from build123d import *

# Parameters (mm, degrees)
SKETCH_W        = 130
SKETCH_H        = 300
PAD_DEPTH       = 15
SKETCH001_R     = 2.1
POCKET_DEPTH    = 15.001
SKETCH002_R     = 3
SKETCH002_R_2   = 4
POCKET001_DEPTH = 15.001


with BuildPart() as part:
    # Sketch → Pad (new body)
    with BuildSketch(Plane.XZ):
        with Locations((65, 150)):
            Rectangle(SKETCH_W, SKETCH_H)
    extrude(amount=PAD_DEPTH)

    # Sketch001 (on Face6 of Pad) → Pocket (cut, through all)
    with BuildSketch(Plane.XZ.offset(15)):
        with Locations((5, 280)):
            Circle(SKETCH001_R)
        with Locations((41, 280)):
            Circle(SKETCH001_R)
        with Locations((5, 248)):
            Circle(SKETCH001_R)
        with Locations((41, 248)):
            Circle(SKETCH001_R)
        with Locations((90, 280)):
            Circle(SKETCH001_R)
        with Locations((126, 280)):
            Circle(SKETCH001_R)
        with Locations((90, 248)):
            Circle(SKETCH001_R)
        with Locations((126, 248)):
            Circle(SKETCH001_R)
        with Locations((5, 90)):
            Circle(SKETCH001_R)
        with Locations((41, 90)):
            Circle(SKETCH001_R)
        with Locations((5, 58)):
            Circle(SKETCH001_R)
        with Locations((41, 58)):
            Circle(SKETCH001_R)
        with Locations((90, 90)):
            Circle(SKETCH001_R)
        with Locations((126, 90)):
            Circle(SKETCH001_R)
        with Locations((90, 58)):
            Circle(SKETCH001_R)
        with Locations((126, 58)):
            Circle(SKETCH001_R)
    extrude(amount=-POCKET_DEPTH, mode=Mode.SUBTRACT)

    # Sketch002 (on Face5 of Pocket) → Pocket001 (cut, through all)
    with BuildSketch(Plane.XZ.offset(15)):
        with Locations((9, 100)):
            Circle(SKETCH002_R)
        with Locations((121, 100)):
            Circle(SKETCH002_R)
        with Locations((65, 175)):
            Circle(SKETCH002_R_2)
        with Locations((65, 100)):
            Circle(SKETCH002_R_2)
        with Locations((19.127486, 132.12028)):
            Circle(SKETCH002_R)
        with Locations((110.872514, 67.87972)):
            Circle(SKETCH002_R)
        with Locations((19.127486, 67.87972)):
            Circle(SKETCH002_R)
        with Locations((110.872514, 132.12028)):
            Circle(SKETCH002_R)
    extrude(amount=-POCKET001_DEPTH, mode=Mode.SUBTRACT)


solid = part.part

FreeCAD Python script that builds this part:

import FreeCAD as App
import Part
import Sketcher

V = App.Vector


def add_polygon(sketch, points):
    """Adds a closed chain of lines whose ends are joined by coincident constraints."""
    first, n = sketch.GeometryCount, len(points)
    for a, b in zip(points, points[1:] + points[:1]):
        sketch.addGeometry(Part.LineSegment(App.Vector(*a, 0), App.Vector(*b, 0)), False)
    for i in range(n):
        sketch.addConstraint(Sketcher.Constraint("Coincident", first + i, 2, first + (i + 1) % n, 1))

doc = App.newDocument("Part")
params = doc.addObject("Spreadsheet::Sheet", "Params")
for row, (alias, value) in enumerate([
    ("sketch1_width", "130 mm"),
    ("sketch1_height", "300 mm"),
    ("pad1_length", "15 mm"),
    ("sketch2_diameter", "4.2 mm"),
    ("sketch3_diameter", "6 mm"),
    ("sketch3_diameter2", "8 mm"),
], start=1):
    params.set(f"A{row}", alias)
    params.set(f"B{row}", "=" + value)
    params.setAlias(f"B{row}", alias)

body = doc.addObject("PartDesign::Body", "Body")

sketch1 = body.newObject("Sketcher::SketchObject", "Sketch")
sketch1.AttachmentSupport = (doc.getObject("XZ_Plane"), [""])
sketch1.MapMode = "FlatFace"
add_polygon(sketch1, [(0, 300), (0, 0), (130, 0), (130, 300)])
sketch1.addConstraint(Sketcher.Constraint("Vertical", 0))
sketch1.addConstraint(Sketcher.Constraint("Horizontal", 1))
sketch1.addConstraint(Sketcher.Constraint("Vertical", 2))
sketch1.addConstraint(Sketcher.Constraint("Horizontal", 3))
sketch1.addConstraint(Sketcher.Constraint("Coincident", 0, 2, -1, 1))
sketch1.addConstraint(Sketcher.Constraint("DistanceX", 1, 1, 1, 2, 130.0))
sketch1.addConstraint(Sketcher.Constraint("DistanceY", 0, 2, 0, 1, 300.0))
sketch1.setExpression("Constraints[9]", "Params.sketch1_width")
sketch1.setExpression("Constraints[10]", "Params.sketch1_height")
pad1 = body.newObject("PartDesign::Pad", "Pad")
pad1.Profile = sketch1
pad1.setExpression("Length", "Params.pad1_length")

sketch2 = body.newObject("Sketcher::SketchObject", "Sketch001")
sketch2.AttachmentSupport = (doc.getObject("XZ_Plane"), [""])
sketch2.MapMode = "FlatFace"
sketch2.AttachmentOffset = App.Placement(V(0, 0, 15), App.Rotation())
sketch2.addGeometry(Part.Circle(V(5, 280, 0), V(0, 0, 1), 2.1), False)
sketch2.addGeometry(Part.Circle(V(41, 280, 0), V(0, 0, 1), 2.1), False)
sketch2.addGeometry(Part.Circle(V(5, 248, 0), V(0, 0, 1), 2.1), False)
sketch2.addGeometry(Part.Circle(V(41, 248, 0), V(0, 0, 1), 2.1), False)
sketch2.addGeometry(Part.Circle(V(90, 280, 0), V(0, 0, 1), 2.1), False)
sketch2.addGeometry(Part.Circle(V(126, 280, 0), V(0, 0, 1), 2.1), False)
sketch2.addGeometry(Part.Circle(V(90, 248, 0), V(0, 0, 1), 2.1), False)
sketch2.addGeometry(Part.Circle(V(126, 248, 0), V(0, 0, 1), 2.1), False)
sketch2.addGeometry(Part.Circle(V(5, 90, 0), V(0, 0, 1), 2.1), False)
sketch2.addGeometry(Part.Circle(V(41, 90, 0), V(0, 0, 1), 2.1), False)
sketch2.addGeometry(Part.Circle(V(5, 58, 0), V(0, 0, 1), 2.1), False)
sketch2.addGeometry(Part.Circle(V(41, 58, 0), V(0, 0, 1), 2.1), False)
sketch2.addGeometry(Part.Circle(V(90, 90, 0), V(0, 0, 1), 2.1), False)
sketch2.addGeometry(Part.Circle(V(126, 90, 0), V(0, 0, 1), 2.1), False)
sketch2.addGeometry(Part.Circle(V(90, 58, 0), V(0, 0, 1), 2.1), False)
sketch2.addGeometry(Part.Circle(V(126, 58, 0), V(0, 0, 1), 2.1), False)
sketch2.addConstraint(Sketcher.Constraint("Equal", 0, 1))
sketch2.addConstraint(Sketcher.Constraint("Equal", 1, 2))
sketch2.addConstraint(Sketcher.Constraint("Equal", 2, 3))
sketch2.addConstraint(Sketcher.Constraint("Equal", 3, 4))
sketch2.addConstraint(Sketcher.Constraint("Equal", 4, 5))
sketch2.addConstraint(Sketcher.Constraint("Equal", 5, 6))
sketch2.addConstraint(Sketcher.Constraint("Equal", 6, 7))
sketch2.addConstraint(Sketcher.Constraint("Equal", 7, 8))
sketch2.addConstraint(Sketcher.Constraint("Equal", 8, 9))
sketch2.addConstraint(Sketcher.Constraint("Equal", 9, 10))
sketch2.addConstraint(Sketcher.Constraint("Equal", 10, 11))
sketch2.addConstraint(Sketcher.Constraint("Equal", 11, 12))
sketch2.addConstraint(Sketcher.Constraint("Equal", 12, 13))
sketch2.addConstraint(Sketcher.Constraint("Equal", 13, 14))
sketch2.addConstraint(Sketcher.Constraint("Equal", 14, 15))
sketch2.addConstraint(Sketcher.Constraint("Horizontal", 0, 3, 1, 3))
sketch2.addConstraint(Sketcher.Constraint("Horizontal", 2, 3, 3, 3))
sketch2.addConstraint(Sketcher.Constraint("Horizontal", 1, 3, 4, 3))
sketch2.addConstraint(Sketcher.Constraint("Horizontal", 4, 3, 5, 3))
sketch2.addConstraint(Sketcher.Constraint("Horizontal", 3, 3, 6, 3))
sketch2.addConstraint(Sketcher.Constraint("Horizontal", 6, 3, 7, 3))
sketch2.addConstraint(Sketcher.Constraint("Horizontal", 8, 3, 9, 3))
sketch2.addConstraint(Sketcher.Constraint("Horizontal", 10, 3, 11, 3))
sketch2.addConstraint(Sketcher.Constraint("Horizontal", 9, 3, 12, 3))
sketch2.addConstraint(Sketcher.Constraint("Horizontal", 12, 3, 13, 3))
sketch2.addConstraint(Sketcher.Constraint("Horizontal", 11, 3, 14, 3))
sketch2.addConstraint(Sketcher.Constraint("Horizontal", 14, 3, 15, 3))
sketch2.addConstraint(Sketcher.Constraint("Vertical", 0, 3, 2, 3))
sketch2.addConstraint(Sketcher.Constraint("Vertical", 1, 3, 3, 3))
sketch2.addConstraint(Sketcher.Constraint("Vertical", 4, 3, 6, 3))
sketch2.addConstraint(Sketcher.Constraint("Vertical", 5, 3, 7, 3))
sketch2.addConstraint(Sketcher.Constraint("Vertical", 2, 3, 8, 3))
sketch2.addConstraint(Sketcher.Constraint("Vertical", 3, 3, 9, 3))
sketch2.addConstraint(Sketcher.Constraint("Vertical", 8, 3, 10, 3))
sketch2.addConstraint(Sketcher.Constraint("Vertical", 9, 3, 11, 3))
sketch2.addConstraint(Sketcher.Constraint("Vertical", 6, 3, 12, 3))
sketch2.addConstraint(Sketcher.Constraint("Vertical", 7, 3, 13, 3))
sketch2.addConstraint(Sketcher.Constraint("Vertical", 12, 3, 14, 3))
sketch2.addConstraint(Sketcher.Constraint("Vertical", 13, 3, 15, 3))
sketch2.addConstraint(Sketcher.Constraint("Diameter", 0, 4.2))
sketch2.addConstraint(Sketcher.Constraint("DistanceX", -1, 1, 0, 3, 5.0))
sketch2.addConstraint(Sketcher.Constraint("DistanceY", -1, 1, 0, 3, 280.0))
sketch2.addConstraint(Sketcher.Constraint("DistanceX", -1, 1, 1, 3, 41.0))
sketch2.addConstraint(Sketcher.Constraint("DistanceY", -1, 1, 2, 3, 248.0))
sketch2.addConstraint(Sketcher.Constraint("DistanceX", -1, 1, 4, 3, 90.0))
sketch2.addConstraint(Sketcher.Constraint("DistanceX", -1, 1, 5, 3, 126.0))
sketch2.addConstraint(Sketcher.Constraint("DistanceY", -1, 1, 8, 3, 90.0))
sketch2.addConstraint(Sketcher.Constraint("DistanceY", -1, 1, 10, 3, 58.0))
sketch2.setExpression("Constraints[39]", "Params.sketch2_diameter")
pocket1 = body.newObject("PartDesign::Pocket", "Pocket")
pocket1.Profile = sketch2
pocket1.Type = "ThroughAll"

sketch3 = body.newObject("Sketcher::SketchObject", "Sketch002")
sketch3.AttachmentSupport = (doc.getObject("XZ_Plane"), [""])
sketch3.MapMode = "FlatFace"
sketch3.AttachmentOffset = App.Placement(V(0, 0, 15), App.Rotation())
sketch3.addGeometry(Part.Circle(V(9, 100, 0), V(0, 0, 1), 3), False)
sketch3.addGeometry(Part.Circle(V(121, 100, 0), V(0, 0, 1), 3), False)
sketch3.addGeometry(Part.Circle(V(65, 175, 0), V(0, 0, 1), 4), False)
sketch3.addGeometry(Part.Circle(V(65, 100, 0), V(0, 0, 1), 4), False)
sketch3.addGeometry(Part.Circle(V(19.1, 132.1, 0), V(0, 0, 1), 3), False)
sketch3.addGeometry(Part.Circle(V(110.9, 67.9, 0), V(0, 0, 1), 3), False)
sketch3.addGeometry(Part.Circle(V(19.1, 67.9, 0), V(0, 0, 1), 3), False)
sketch3.addGeometry(Part.Circle(V(110.9, 132.1, 0), V(0, 0, 1), 3), False)
sketch3.addConstraint(Sketcher.Constraint("Equal", 0, 1))
sketch3.addConstraint(Sketcher.Constraint("Equal", 2, 3))
sketch3.addConstraint(Sketcher.Constraint("Equal", 1, 4))
sketch3.addConstraint(Sketcher.Constraint("Equal", 4, 5))
sketch3.addConstraint(Sketcher.Constraint("Equal", 5, 6))
sketch3.addConstraint(Sketcher.Constraint("Equal", 6, 7))
sketch3.addConstraint(Sketcher.Constraint("Horizontal", 0, 3, 1, 3))
sketch3.addConstraint(Sketcher.Constraint("Horizontal", 1, 3, 3, 3))
sketch3.addConstraint(Sketcher.Constraint("Horizontal", 5, 3, 6, 3))
sketch3.addConstraint(Sketcher.Constraint("Horizontal", 4, 3, 7, 3))
sketch3.addConstraint(Sketcher.Constraint("Vertical", 2, 3, 3, 3))
sketch3.addConstraint(Sketcher.Constraint("Vertical", 4, 3, 6, 3))
sketch3.addConstraint(Sketcher.Constraint("Vertical", 5, 3, 7, 3))
sketch3.addConstraint(Sketcher.Constraint("Diameter", 0, 6.0))
sketch3.addConstraint(Sketcher.Constraint("Diameter", 2, 8.0))
sketch3.addConstraint(Sketcher.Constraint("DistanceX", -1, 1, 0, 3, 9.0))
sketch3.addConstraint(Sketcher.Constraint("DistanceY", -1, 1, 0, 3, 100.0))
sketch3.addConstraint(Sketcher.Constraint("DistanceX", -1, 1, 1, 3, 121.0))
sketch3.addConstraint(Sketcher.Constraint("DistanceX", -1, 1, 2, 3, 65.0))
sketch3.addConstraint(Sketcher.Constraint("DistanceY", -1, 1, 2, 3, 175.0))
sketch3.addConstraint(Sketcher.Constraint("DistanceY", -1, 1, 4, 3, 132.12028))
sketch3.addConstraint(Sketcher.Constraint("DistanceY", -1, 1, 5, 3, 67.87972))
sketch3.addConstraint(Sketcher.Constraint("DistanceX", -1, 1, 4, 3, 19.127486))
sketch3.addConstraint(Sketcher.Constraint("DistanceX", -1, 1, 5, 3, 110.872514))
sketch3.setExpression("Constraints[13]", "Params.sketch3_diameter")
sketch3.setExpression("Constraints[14]", "Params.sketch3_diameter2")
pocket2 = body.newObject("PartDesign::Pocket", "Pocket001")
pocket2.Profile = sketch3
pocket2.Type = "ThroughAll"

doc.recompute()
